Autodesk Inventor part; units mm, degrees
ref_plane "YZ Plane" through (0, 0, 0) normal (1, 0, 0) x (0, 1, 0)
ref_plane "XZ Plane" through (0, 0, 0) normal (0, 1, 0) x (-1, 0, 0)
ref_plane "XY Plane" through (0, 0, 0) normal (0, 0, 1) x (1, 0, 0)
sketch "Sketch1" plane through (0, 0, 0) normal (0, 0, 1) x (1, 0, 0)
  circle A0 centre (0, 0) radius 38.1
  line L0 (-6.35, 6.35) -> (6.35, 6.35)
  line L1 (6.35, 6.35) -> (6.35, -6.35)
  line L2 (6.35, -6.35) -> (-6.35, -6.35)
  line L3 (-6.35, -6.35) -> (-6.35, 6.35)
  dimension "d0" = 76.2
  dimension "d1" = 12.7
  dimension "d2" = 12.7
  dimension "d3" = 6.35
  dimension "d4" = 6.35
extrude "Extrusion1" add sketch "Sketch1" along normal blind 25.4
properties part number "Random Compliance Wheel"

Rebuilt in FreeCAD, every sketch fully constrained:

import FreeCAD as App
import Part
import Sketcher
from FreeCAD import Vector
Q = App.Units.Quantity


def add_polygon(sketch, points):
    """Adds a closed chain of lines whose ends are joined by coincident constraints."""
    first, n = sketch.GeometryCount, len(points)
    for a, b in zip(points, points[1:] + points[:1]):
        sketch.addGeometry(Part.LineSegment(App.Vector(*a, 0), App.Vector(*b, 0)), False)
    for i in range(n):
        sketch.addConstraint(Sketcher.Constraint("Coincident", first + i, 2, first + (i + 1) % n, 1))

doc = App.newDocument("Part")
body = doc.addObject("PartDesign::Body", "Body")

# Sketch on XY plane
sketch1 = doc.addObject("Sketcher::SketchObject", "Sketch")
body.addObject(sketch1)
sketch1.AttachmentSupport = (doc.XY_Plane, [""])
sketch1.MapMode = "FlatFace"
sketch1.addGeometry(Part.Circle(Vector(0, 0, 0), Vector(0, 0, 1), 38), False)  # 0
add_polygon(sketch1, [(-6, -6), (-6, 6), (6, 6), (6, -6)])  # lines 1-4
sketch1.addConstraint([
    Sketcher.Constraint("Vertical", 1),
    Sketcher.Constraint("Horizontal", 2),
    Sketcher.Constraint("Vertical", 3),
    Sketcher.Constraint("Horizontal", 4),
    Sketcher.Constraint("Coincident", 0, 3, -1, 1),
    Sketcher.Constraint("Symmetric", 1, 2, 3, 2, -1, 1),
    Sketcher.Constraint("Equal", 4, 1),
    Sketcher.Constraint("Diameter", 0, Q("3 in")),
    Sketcher.Constraint("DistanceX", 2, 1, 2, 2, Q("0.5 in")),
])
pad1 = doc.addObject("PartDesign::Pad", "Pad")
body.addObject(pad1)
pad1.Profile = sketch1
pad1.Length = Q("1 in")

doc.recompute()
